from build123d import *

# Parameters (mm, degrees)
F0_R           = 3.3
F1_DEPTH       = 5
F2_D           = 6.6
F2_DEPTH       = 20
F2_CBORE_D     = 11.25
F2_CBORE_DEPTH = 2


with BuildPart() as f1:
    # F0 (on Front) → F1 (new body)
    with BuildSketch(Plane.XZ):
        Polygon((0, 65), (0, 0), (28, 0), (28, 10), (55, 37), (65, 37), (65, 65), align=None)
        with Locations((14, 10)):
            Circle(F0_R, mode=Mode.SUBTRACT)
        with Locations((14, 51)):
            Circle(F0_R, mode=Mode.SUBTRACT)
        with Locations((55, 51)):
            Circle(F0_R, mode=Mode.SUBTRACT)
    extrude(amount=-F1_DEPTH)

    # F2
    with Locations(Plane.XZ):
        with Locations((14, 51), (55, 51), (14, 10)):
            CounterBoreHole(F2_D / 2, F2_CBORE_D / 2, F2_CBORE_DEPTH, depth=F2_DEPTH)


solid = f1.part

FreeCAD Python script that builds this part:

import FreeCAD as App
import Part
import Sketcher
from FreeCAD import Vector


def add_polygon(sketch, points):
    """Adds a closed chain of lines whose ends are joined by coincident constraints."""
    first, n = sketch.GeometryCount, len(points)
    for a, b in zip(points, points[1:] + points[:1]):
        sketch.addGeometry(Part.LineSegment(App.Vector(*a, 0), App.Vector(*b, 0)), False)
    for i in range(n):
        sketch.addConstraint(Sketcher.Constraint("Coincident", first + i, 2, first + (i + 1) % n, 1))

doc = App.newDocument("Part")
body = doc.addObject("PartDesign::Body", "Body")

# Sketch on XZ plane
sketch1 = body.newObject("Sketcher::SketchObject", "Sketch")
sketch1.AttachmentSupport = (doc.getObject("XZ_Plane"), [""])
sketch1.MapMode = "FlatFace"
add_polygon(sketch1, [(0, 65), (0, 0), (28, 0), (28, 10), (55, 37), (65, 37), (65, 65)])  # lines 0-6
sketch1.addGeometry(Part.Circle(Vector(14, 10, 0), Vector(0, 0, 1), 3.3), False)  # 7
sketch1.addGeometry(Part.Circle(Vector(14, 51, 0), Vector(0, 0, 1), 3.3), False)  # 8
sketch1.addGeometry(Part.Circle(Vector(55, 51, 0), Vector(0, 0, 1), 3.3), False)  # 9
sketch1.addConstraint([
    Sketcher.Constraint("Vertical", 0),
    Sketcher.Constraint("Horizontal", 1),
    Sketcher.Constraint("Vertical", 2),
    Sketcher.Constraint("Horizontal", 4),
    Sketcher.Constraint("Vertical", 5),
    Sketcher.Constraint("Horizontal", 6),
    Sketcher.Constraint("Coincident", 0, 2, -1, 1),
    Sketcher.Constraint("Equal", 7, 8),
    Sketcher.Constraint("Equal", 8, 9),
    Sketcher.Constraint("Horizontal", 8, 3, 9, 3),
    Sketcher.Constraint("Horizontal", 7, 3, 2, 2),
    Sketcher.Constraint("Vertical", 7, 3, 8, 3),
    Sketcher.Constraint("Vertical", 9, 3, 3, 2),
    Sketcher.Constraint("Equal", 6, 0),
    Sketcher.Constraint("Equal", 4, 2),
    Sketcher.Constraint("Equal", 1, 5),
    Sketcher.Constraint("Diameter", 7, 6.6),
    Sketcher.Constraint("DistanceX", 1, 1, 1, 2, 28.0),
    Sketcher.Constraint("DistanceX", 4, 1, 4, 2, 10.0),
    Sketcher.Constraint("DistanceX", 6, 2, 6, 1, 65.0),
    Sketcher.Constraint("DistanceX", -1, 1, 7, 3, 14.0),
    Sketcher.Constraint("DistanceY", -1, 1, 8, 3, 51.0),
])
pad1 = body.newObject("PartDesign::Pad", "Pad")
pad1.Profile = sketch1
pad1.Length = 5
pad1.Reversed = True

# Sketch on XZ plane
sketch2 = body.newObject("Sketcher::SketchObject", "Sketch001")
sketch2.AttachmentSupport = (doc.getObject("XZ_Plane"), [""])
sketch2.MapMode = "FlatFace"
sketch2.addGeometry([
    Part.Circle(Vector(14, 51, 0), Vector(0, 0, 1), 3.3),
    Part.Circle(Vector(55, 51, 0), Vector(0, 0, 1), 3.3),
    Part.Circle(Vector(14, 10, 0), Vector(0, 0, 1), 3.3),
], False)
sketch2.addConstraint([
    Sketcher.Constraint("Equal", 0, 1),
    Sketcher.Constraint("Equal", 1, 2),
    Sketcher.Constraint("Horizontal", 0, 3, 1, 3),
    Sketcher.Constraint("Vertical", 0, 3, 2, 3),
    Sketcher.Constraint("Diameter", 0, 6.6),
    Sketcher.Constraint("DistanceX", -1, 1, 0, 3, 14.0),
    Sketcher.Constraint("DistanceY", -1, 1, 0, 3, 51.0),
    Sketcher.Constraint("DistanceX", -1, 1, 1, 3, 55.0),
    Sketcher.Constraint("DistanceY", -1, 1, 2, 3, 10.0),
])
doc.recompute()
hole = body.newObject("PartDesign::Hole", "Hole")
hole.Profile = sketch2
hole.ThreadType = "None"
hole.Diameter = 6.6
hole.DepthType = "Dimension"
hole.Depth = 20
hole.DrillPoint = "Flat"
hole.HoleCutType = "Counterbore"
hole.HoleCutDiameter = 11.25
hole.HoleCutDepth = 2

doc.recompute()
